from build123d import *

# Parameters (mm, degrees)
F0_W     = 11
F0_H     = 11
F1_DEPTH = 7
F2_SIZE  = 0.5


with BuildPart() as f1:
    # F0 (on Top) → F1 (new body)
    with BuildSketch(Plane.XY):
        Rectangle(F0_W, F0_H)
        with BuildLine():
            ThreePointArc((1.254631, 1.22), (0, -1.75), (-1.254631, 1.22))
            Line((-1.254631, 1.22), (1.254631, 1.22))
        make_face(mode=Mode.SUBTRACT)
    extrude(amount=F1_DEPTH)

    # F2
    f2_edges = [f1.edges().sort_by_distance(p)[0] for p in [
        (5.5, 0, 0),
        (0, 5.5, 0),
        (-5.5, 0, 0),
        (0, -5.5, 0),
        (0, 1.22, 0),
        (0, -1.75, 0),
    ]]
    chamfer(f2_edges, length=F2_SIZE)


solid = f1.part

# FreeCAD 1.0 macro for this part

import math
import FreeCAD as App
import Part
import Sketcher


def edges_at(feature, points):
    """Names of the edges that pass closest to the given points."""
    edges = feature.Shape.Edges
    near = lambda p: min(range(len(edges)), key=lambda i: edges[i].distToShape(Part.Vertex(*p))[0])
    return sorted({f"Edge{near(p) + 1}" for p in points})

doc = App.newDocument("Part")
body = doc.addObject("PartDesign::Body", "Body")

# Sketch on XY plane
sketch1 = doc.addObject("Sketcher::SketchObject", "Sketch")
body.addObject(sketch1)
sketch1.AttachmentSupport = (doc.XY_Plane, [""])
sketch1.MapMode = "FlatFace"
sketch1.addGeometry([
    Part.LineSegment(App.Vector(-5.5, 5.5, 0), App.Vector(-5.5, -5.5, 0)),  # 0
    Part.LineSegment(App.Vector(-5.5, -5.5, 0), App.Vector(5.5, -5.5, 0)),  # 1
    Part.LineSegment(App.Vector(5.5, -5.5, 0), App.Vector(5.5, 5.5, 0)),  # 2
    Part.LineSegment(App.Vector(5.5, 5.5, 0), App.Vector(-5.5, 5.5, 0)),  # 3
    Part.LineSegment(App.Vector(-1.254631, 1.22, 0), App.Vector(1.254631, 1.22, 0)),  # 4
    Part.ArcOfCircle(Part.Circle(App.Vector(0, 0, 0), App.Vector(0, 0, 1), 1.75), math.radians(135.801764), math.radians(404.198236)),  # 5
], False)
sketch1.addConstraint([
    Sketcher.Constraint("Coincident", 0, 2, 1, 1),
    Sketcher.Constraint("Coincident", 1, 2, 2, 1),
    Sketcher.Constraint("Coincident", 2, 2, 3, 1),
    Sketcher.Constraint("Coincident", 3, 2, 0, 1),
    Sketcher.Constraint("Coincident", 4, 1, 5, 1),
    Sketcher.Constraint("Coincident", 5, 2, 4, 2),
    Sketcher.Constraint("Vertical", 0),
    Sketcher.Constraint("Horizontal", 1),
    Sketcher.Constraint("Vertical", 2),
    Sketcher.Constraint("Horizontal", 3),
    Sketcher.Constraint("Horizontal", 4),
    Sketcher.Constraint("Coincident", 5, 3, -1, 1),
    Sketcher.Constraint("Symmetric", 0, 2, 2, 2, -1, 1),
    Sketcher.Constraint("Equal", 3, 0),
    Sketcher.Constraint("DistanceX", 1, 1, 1, 2, 11.0),
    Sketcher.Constraint("Radius", 5, 1.75),
    Sketcher.Constraint("DistanceY", -1, 1, 4, 1, 1.22),
])
pad1 = doc.addObject("PartDesign::Pad", "Pad")
body.addObject(pad1)
pad1.Profile = sketch1
pad1.Length = 7
doc.recompute()

chamfer = doc.addObject("PartDesign::Chamfer", "Chamfer")
body.addObject(chamfer)
chamfer.Base = (pad1, edges_at(pad1, [
    (5.5, 0, 0),
    (0, 5.5, 0),
    (-5.5, 0, 0),
    (0, -5.5, 0),
    (0, 1.22, 0),
    (0, -1.75, 0),
]))
chamfer.Size = 0.5

doc.recompute()
